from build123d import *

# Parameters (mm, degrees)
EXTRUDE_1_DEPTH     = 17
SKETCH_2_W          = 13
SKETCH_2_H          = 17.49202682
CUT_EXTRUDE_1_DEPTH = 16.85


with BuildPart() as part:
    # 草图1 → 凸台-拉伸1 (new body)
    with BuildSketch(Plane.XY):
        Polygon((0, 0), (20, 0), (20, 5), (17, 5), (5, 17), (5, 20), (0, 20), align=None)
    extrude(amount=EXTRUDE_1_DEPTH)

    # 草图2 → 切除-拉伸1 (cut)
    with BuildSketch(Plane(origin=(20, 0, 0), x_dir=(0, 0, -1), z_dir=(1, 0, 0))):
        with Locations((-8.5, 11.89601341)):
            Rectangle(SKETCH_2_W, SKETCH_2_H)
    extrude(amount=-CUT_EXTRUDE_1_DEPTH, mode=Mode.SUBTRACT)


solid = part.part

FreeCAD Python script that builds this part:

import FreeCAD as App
import Part
import Sketcher
from FreeCAD import Vector

doc = App.newDocument("Part")
body = doc.addObject("PartDesign::Body", "Body")

# Sketch on XY plane
sketch1 = body.newObject("Sketcher::SketchObject", "Sketch")
sketch1.AttachmentSupport = (doc.getObject("XY_Plane"), [""])
sketch1.MapMode = "FlatFace"
sketch1.addGeometry([
    Part.LineSegment(Vector(0, 0, 0), Vector(20, 0, 0)),  # 0
    Part.LineSegment(Vector(20, 0, 0), Vector(20, 5, 0)),  # 1
    Part.LineSegment(Vector(20, 5, 0), Vector(17, 5, 0)),  # 2
    Part.LineSegment(Vector(17, 5, 0), Vector(5, 17, 0)),  # 3
    Part.LineSegment(Vector(5, 17, 0), Vector(5, 20, 0)),  # 4
    Part.LineSegment(Vector(5, 20, 0), Vector(0, 20, 0)),  # 5
    Part.LineSegment(Vector(0, 20, 0), Vector(0, 0, 0)),  # 6
], False)
sketch1.addConstraint([
    Sketcher.Constraint("Coincident", 0, 2, 1, 1),
    Sketcher.Constraint("Coincident", 1, 2, 2, 1),
    Sketcher.Constraint("Coincident", 2, 2, 3, 1),
    Sketcher.Constraint("Coincident", 3, 2, 4, 1),
    Sketcher.Constraint("Coincident", 4, 2, 5, 1),
    Sketcher.Constraint("Coincident", 5, 2, 6, 1),
    Sketcher.Constraint("Coincident", 6, 2, 0, 1),
    Sketcher.Constraint("Horizontal", 0),
    Sketcher.Constraint("Vertical", 1),
    Sketcher.Constraint("Horizontal", 2),
    Sketcher.Constraint("Vertical", 4),
    Sketcher.Constraint("Horizontal", 5),
    Sketcher.Constraint("Vertical", 6),
    Sketcher.Constraint("Coincident", 6, 2, -1, 1),
    Sketcher.Constraint("Equal", 5, 1),
    Sketcher.Constraint("Equal", 2, 4),
    Sketcher.Constraint("Equal", 0, 6),
    Sketcher.Constraint("DistanceX", 0, 1, 0, 2, 20.0),
    Sketcher.Constraint("DistanceX", 2, 2, 2, 1, 3.0),
    Sketcher.Constraint("DistanceX", 5, 2, 5, 1, 5.0),
])
pad1 = body.newObject("PartDesign::Pad", "Pad")
pad1.Profile = sketch1
pad1.Length = 17

# Sketch on YZ plane
sketch2 = body.newObject("Sketcher::SketchObject", "Sketch001")
sketch2.AttachmentSupport = (doc.getObject("YZ_Plane"), [""])
sketch2.MapMode = "FlatFace"
sketch2.AttachmentOffset = App.Placement(Vector(0, 0, 20), App.Rotation())
sketch2.addGeometry([
    Part.LineSegment(Vector(21, 15, 0), Vector(3, 15, 0)),
    Part.LineSegment(Vector(3, 15, 0), Vector(3, 2, 0)),
    Part.LineSegment(Vector(3, 2, 0), Vector(21, 2, 0)),
    Part.LineSegment(Vector(21, 2, 0), Vector(21, 15, 0)),
], False)
sketch2.addConstraint([
    Sketcher.Constraint("Coincident", 0, 2, 1, 1),
    Sketcher.Constraint("Coincident", 1, 2, 2, 1),
    Sketcher.Constraint("Coincident", 2, 2, 3, 1),
    Sketcher.Constraint("Coincident", 3, 2, 0, 1),
    Sketcher.Constraint("Horizontal", 0),
    Sketcher.Constraint("Vertical", 1),
    Sketcher.Constraint("Horizontal", 2),
    Sketcher.Constraint("Vertical", 3),
    Sketcher.Constraint("DistanceY", 1, 2, 1, 1, 13.0),
    Sketcher.Constraint("DistanceY", -1, 1, 0, 2, 15.0),
    Sketcher.Constraint("DistanceX", -1, 1, 0, 2, 3.15),
    Sketcher.Constraint("DistanceX", 0, 2, 0, 1, 17.492027),
])
pocket1 = body.newObject("PartDesign::Pocket", "Pocket")
pocket1.Profile = sketch2
pocket1.Length = 16.85

doc.recompute()
